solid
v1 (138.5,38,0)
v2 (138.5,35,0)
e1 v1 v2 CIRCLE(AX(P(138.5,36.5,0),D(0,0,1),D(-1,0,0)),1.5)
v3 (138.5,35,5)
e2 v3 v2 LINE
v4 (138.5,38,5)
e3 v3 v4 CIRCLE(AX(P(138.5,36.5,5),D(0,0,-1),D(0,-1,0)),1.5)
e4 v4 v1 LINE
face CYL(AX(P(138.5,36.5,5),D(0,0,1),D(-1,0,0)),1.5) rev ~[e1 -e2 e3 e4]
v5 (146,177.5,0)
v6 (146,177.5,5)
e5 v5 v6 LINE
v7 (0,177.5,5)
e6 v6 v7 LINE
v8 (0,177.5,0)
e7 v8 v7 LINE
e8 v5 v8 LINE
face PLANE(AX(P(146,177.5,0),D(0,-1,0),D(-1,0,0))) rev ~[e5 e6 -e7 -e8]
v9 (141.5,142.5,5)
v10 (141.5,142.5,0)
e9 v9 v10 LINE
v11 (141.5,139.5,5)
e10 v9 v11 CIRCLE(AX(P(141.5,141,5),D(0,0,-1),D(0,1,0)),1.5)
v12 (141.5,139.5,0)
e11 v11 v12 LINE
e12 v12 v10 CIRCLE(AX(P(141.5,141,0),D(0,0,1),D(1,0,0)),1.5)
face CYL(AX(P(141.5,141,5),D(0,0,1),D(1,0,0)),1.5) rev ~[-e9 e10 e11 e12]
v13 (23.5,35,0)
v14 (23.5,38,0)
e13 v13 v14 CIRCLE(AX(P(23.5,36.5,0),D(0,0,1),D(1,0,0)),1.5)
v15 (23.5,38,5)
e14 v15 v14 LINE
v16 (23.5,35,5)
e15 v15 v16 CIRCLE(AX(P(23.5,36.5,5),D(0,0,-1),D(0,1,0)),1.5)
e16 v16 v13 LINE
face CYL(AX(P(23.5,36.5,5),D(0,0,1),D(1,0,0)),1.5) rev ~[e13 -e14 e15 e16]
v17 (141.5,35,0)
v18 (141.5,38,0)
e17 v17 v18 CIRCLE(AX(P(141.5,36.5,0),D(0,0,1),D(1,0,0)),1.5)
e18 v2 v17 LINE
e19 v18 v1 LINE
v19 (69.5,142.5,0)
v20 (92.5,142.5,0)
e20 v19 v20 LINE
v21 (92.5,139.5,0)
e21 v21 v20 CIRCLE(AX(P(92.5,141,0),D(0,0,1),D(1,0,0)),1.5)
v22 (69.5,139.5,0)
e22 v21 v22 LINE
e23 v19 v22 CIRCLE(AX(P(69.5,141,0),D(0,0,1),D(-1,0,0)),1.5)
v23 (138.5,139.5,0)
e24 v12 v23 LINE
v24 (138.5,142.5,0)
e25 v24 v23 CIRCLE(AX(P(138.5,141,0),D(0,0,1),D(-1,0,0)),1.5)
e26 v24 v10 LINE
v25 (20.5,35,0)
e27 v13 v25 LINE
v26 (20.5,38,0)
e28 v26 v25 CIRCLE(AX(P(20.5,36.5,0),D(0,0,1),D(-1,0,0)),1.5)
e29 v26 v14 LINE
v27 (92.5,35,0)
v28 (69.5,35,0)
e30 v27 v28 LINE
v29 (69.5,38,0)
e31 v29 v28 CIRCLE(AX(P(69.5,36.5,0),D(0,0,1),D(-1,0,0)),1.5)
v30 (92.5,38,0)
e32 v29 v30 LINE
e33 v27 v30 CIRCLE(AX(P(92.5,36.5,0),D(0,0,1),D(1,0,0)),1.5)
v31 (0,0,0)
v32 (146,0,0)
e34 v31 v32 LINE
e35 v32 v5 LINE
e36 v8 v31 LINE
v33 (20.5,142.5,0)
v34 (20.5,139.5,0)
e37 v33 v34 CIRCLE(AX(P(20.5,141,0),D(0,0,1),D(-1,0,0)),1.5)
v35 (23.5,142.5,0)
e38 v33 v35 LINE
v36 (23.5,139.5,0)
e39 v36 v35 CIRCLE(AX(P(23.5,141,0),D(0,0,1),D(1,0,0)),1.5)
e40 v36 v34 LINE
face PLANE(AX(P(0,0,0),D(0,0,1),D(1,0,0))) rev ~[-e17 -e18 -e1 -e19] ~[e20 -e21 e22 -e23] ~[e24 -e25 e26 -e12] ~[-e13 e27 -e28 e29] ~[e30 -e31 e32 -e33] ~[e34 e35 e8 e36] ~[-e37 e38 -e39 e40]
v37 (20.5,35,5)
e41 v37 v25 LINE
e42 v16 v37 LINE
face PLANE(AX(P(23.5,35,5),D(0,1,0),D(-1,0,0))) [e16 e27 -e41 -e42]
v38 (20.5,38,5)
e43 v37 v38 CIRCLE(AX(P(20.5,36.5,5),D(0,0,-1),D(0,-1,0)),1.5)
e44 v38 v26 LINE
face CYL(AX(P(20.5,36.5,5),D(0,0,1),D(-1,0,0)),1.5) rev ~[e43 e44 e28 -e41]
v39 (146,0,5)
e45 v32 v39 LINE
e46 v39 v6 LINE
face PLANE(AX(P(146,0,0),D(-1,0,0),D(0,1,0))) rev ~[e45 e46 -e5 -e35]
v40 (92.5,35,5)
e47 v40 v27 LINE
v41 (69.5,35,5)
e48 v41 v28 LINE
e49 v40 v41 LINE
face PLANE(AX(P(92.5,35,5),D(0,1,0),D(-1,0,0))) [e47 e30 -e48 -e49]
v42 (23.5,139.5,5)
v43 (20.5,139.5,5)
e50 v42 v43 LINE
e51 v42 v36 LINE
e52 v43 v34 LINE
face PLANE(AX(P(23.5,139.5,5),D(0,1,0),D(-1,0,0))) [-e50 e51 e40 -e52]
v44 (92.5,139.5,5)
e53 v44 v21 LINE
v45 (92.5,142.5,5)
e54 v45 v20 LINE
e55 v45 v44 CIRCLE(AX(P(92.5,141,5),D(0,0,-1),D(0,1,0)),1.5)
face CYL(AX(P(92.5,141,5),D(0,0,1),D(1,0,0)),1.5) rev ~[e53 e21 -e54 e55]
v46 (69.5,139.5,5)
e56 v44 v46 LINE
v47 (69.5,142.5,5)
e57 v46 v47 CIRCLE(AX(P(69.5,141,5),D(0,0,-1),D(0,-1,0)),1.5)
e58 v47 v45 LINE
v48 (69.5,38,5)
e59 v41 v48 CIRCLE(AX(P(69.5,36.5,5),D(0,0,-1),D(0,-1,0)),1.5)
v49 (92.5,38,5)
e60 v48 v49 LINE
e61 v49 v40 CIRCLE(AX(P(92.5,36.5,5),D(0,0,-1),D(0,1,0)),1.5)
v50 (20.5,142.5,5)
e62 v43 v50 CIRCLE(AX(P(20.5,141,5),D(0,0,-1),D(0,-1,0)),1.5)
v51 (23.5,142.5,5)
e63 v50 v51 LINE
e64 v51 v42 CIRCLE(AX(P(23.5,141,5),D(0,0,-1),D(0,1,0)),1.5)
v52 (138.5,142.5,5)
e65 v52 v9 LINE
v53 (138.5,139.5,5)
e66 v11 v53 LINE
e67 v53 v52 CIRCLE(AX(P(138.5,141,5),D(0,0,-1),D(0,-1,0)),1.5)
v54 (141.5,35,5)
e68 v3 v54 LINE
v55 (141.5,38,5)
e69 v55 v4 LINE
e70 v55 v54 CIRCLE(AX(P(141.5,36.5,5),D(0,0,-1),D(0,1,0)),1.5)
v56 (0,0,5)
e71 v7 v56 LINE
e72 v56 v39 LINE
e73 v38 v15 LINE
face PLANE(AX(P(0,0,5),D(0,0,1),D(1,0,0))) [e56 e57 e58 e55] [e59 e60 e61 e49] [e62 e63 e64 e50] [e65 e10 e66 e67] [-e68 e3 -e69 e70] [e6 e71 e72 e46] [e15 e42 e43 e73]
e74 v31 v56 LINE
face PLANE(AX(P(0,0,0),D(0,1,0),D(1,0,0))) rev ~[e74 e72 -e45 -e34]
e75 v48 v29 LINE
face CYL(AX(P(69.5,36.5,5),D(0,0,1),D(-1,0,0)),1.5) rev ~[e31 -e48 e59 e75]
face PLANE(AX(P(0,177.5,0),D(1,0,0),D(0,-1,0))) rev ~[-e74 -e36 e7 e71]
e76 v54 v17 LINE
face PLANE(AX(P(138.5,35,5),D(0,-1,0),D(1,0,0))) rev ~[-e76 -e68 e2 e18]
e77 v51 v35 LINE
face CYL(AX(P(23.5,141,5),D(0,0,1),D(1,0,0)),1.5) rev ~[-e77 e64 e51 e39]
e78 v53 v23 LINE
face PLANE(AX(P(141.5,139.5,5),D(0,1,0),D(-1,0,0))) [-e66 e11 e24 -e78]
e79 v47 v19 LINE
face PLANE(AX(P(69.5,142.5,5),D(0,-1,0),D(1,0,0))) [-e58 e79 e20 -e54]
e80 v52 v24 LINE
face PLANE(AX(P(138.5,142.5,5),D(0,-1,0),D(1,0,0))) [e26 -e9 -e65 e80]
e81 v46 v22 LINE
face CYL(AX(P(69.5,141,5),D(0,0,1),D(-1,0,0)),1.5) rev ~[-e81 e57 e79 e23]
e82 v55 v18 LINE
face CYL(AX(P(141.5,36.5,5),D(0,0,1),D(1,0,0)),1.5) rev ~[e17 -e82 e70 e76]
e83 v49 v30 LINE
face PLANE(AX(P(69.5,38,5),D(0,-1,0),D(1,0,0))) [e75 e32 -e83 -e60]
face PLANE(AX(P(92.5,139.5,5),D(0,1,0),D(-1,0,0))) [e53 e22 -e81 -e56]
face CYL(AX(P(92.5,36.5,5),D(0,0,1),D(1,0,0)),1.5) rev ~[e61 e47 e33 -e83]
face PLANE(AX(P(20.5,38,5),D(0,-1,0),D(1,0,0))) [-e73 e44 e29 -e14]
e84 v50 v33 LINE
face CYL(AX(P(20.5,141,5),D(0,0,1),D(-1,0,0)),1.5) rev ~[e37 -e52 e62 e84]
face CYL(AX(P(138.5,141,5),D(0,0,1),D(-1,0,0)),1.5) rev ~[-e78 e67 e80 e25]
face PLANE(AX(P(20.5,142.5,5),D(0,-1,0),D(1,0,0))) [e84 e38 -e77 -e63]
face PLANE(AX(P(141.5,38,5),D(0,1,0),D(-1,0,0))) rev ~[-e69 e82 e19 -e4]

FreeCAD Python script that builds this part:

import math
import FreeCAD as App
import Part
import Sketcher
Q = App.Units.Quantity

doc = App.newDocument("Part")
body = doc.addObject("PartDesign::Body", "Body")

# Sketch on XY plane
sketch1 = body.newObject("Sketcher::SketchObject", "Sketch")
sketch1.AttachmentSupport = (doc.getObject("XY_Plane"), [""])
sketch1.MapMode = "FlatFace"
sketch1.addGeometry([
    Part.LineSegment(App.Vector(0, 178, 0), App.Vector(0, 0, 0)),
    Part.LineSegment(App.Vector(0, 0, 0), App.Vector(146, 0, 0)),
    Part.LineSegment(App.Vector(146, 0, 0), App.Vector(146, 178, 0)),
    Part.LineSegment(App.Vector(146, 178, 0), App.Vector(0, 178, 0)),
], False)
sketch1.addConstraint([
    Sketcher.Constraint("Coincident", 0, 2, 1, 1),
    Sketcher.Constraint("Coincident", 1, 2, 2, 1),
    Sketcher.Constraint("Coincident", 2, 2, 3, 1),
    Sketcher.Constraint("Coincident", 3, 2, 0, 1),
    Sketcher.Constraint("Vertical", 0),
    Sketcher.Constraint("Horizontal", 1),
    Sketcher.Constraint("Vertical", 2),
    Sketcher.Constraint("Horizontal", 3),
    Sketcher.Constraint("Coincident", 0, 2, -1, 1),
    Sketcher.Constraint("DistanceX", 1, 1, 1, 2, Q("146 mm")),
    Sketcher.Constraint("DistanceY", 0, 2, 0, 1, Q("177.5 mm")),
])
pad1 = body.newObject("PartDesign::Pad", "Pad")
pad1.Profile = sketch1
pad1.Length = 5

# Sketch on XY plane
sketch2 = body.newObject("Sketcher::SketchObject", "Sketch001")
sketch2.AttachmentSupport = (doc.getObject("XY_Plane"), [""])
sketch2.MapMode = "FlatFace"
sketch2.AttachmentOffset = App.Placement(App.Vector(0, 0, 5), App.Rotation())
sketch2.addGeometry([
    Part.LineSegment(App.Vector(23.5, 142.5, 0), App.Vector(20.5, 142.5, 0)),  # 0
    Part.ArcOfCircle(Part.Circle(App.Vector(20.5, 141, 0), App.Vector(0, 0, 1), 1.5), math.radians(90), math.radians(270)),  # 1
    Part.LineSegment(App.Vector(20.5, 139.5, 0), App.Vector(23.5, 139.5, 0)),  # 2
    Part.ArcOfCircle(Part.Circle(App.Vector(23.5, 141, 0), App.Vector(0, 0, 1), 1.5), math.radians(-90), math.radians(90)),  # 3
    Part.LineSegment(App.Vector(23.5, 38, 0), App.Vector(20.5, 38, 0)),  # 4
    Part.ArcOfCircle(Part.Circle(App.Vector(20.5, 36.5, 0), App.Vector(0, 0, 1), 1.5), math.radians(90), math.radians(270)),  # 5
    Part.LineSegment(App.Vector(20.5, 35, 0), App.Vector(23.5, 35, 0)),  # 6
    Part.ArcOfCircle(Part.Circle(App.Vector(23.5, 36.5, 0), App.Vector(0, 0, 1), 1.5), math.radians(-90), math.radians(90)),  # 7
    Part.LineSegment(App.Vector(141.5, 142.5, 0), App.Vector(138.5, 142.5, 0)),  # 8
    Part.ArcOfCircle(Part.Circle(App.Vector(138.5, 141, 0), App.Vector(0, 0, 1), 1.5), math.radians(90), math.radians(270)),  # 9
    Part.LineSegment(App.Vector(138.5, 139.5, 0), App.Vector(141.5, 139.5, 0)),  # 10
    Part.ArcOfCircle(Part.Circle(App.Vector(141.5, 141, 0), App.Vector(0, 0, 1), 1.5), math.radians(-90), math.radians(90)),  # 11
    Part.ArcOfCircle(Part.Circle(App.Vector(141.5, 36.5, 0), App.Vector(0, 0, 1), 1.5), math.radians(-90), math.radians(90)),  # 12
    Part.LineSegment(App.Vector(141.5, 38, 0), App.Vector(138.5, 38, 0)),  # 13
    Part.ArcOfCircle(Part.Circle(App.Vector(138.5, 36.5, 0), App.Vector(0, 0, 1), 1.5), math.radians(90), math.radians(270)),  # 14
    Part.LineSegment(App.Vector(138.5, 35, 0), App.Vector(141.5, 35, 0)),  # 15
    Part.LineSegment(App.Vector(92.5, 142.5, 0), App.Vector(69.5, 142.5, 0)),  # 16
    Part.ArcOfCircle(Part.Circle(App.Vector(69.5, 141, 0), App.Vector(0, 0, 1), 1.5), math.radians(90), math.radians(270)),  # 17
    Part.LineSegment(App.Vector(69.5, 139.5, 0), App.Vector(92.5, 139.5, 0)),  # 18
    Part.ArcOfCircle(Part.Circle(App.Vector(92.5, 141, 0), App.Vector(0, 0, 1), 1.5), math.radians(-90), math.radians(90)),  # 19
    Part.LineSegment(App.Vector(92.5, 38, 0), App.Vector(69.5, 38, 0)),  # 20
    Part.ArcOfCircle(Part.Circle(App.Vector(69.5, 36.5, 0), App.Vector(0, 0, 1), 1.5), math.radians(90), math.radians(270)),  # 21
    Part.LineSegment(App.Vector(69.5, 35, 0), App.Vector(92.5, 35, 0)),  # 22
    Part.ArcOfCircle(Part.Circle(App.Vector(92.5, 36.5, 0), App.Vector(0, 0, 1), 1.5), math.radians(-90), math.radians(90)),  # 23
], False)
sketch2.addConstraint([
    Sketcher.Constraint("Tangent", 0, 2, 1, 1),
    Sketcher.Constraint("Tangent", 1, 2, 2, 1),
    Sketcher.Constraint("Tangent", 2, 2, 3, 1),
    Sketcher.Constraint("Tangent", 3, 2, 0, 1),
    Sketcher.Constraint("Tangent", 4, 2, 5, 1),
    Sketcher.Constraint("Tangent", 5, 2, 6, 1),
    Sketcher.Constraint("Tangent", 6, 2, 7, 1),
    Sketcher.Constraint("Tangent", 7, 2, 4, 1),
    Sketcher.Constraint("Tangent", 8, 2, 9, 1),
    Sketcher.Constraint("Tangent", 9, 2, 10, 1),
    Sketcher.Constraint("Tangent", 10, 2, 11, 1),
    Sketcher.Constraint("Tangent", 11, 2, 8, 1),
    Sketcher.Constraint("Tangent", 12, 2, 13, 1),
    Sketcher.Constraint("Tangent", 13, 2, 14, 1),
    Sketcher.Constraint("Tangent", 14, 2, 15, 1),
    Sketcher.Constraint("Tangent", 15, 2, 12, 1),
    Sketcher.Constraint("Tangent", 16, 2, 17, 1),
    Sketcher.Constraint("Tangent", 17, 2, 18, 1),
    Sketcher.Constraint("Tangent", 18, 2, 19, 1),
    Sketcher.Constraint("Tangent", 19, 2, 16, 1),
    Sketcher.Constraint("Tangent", 20, 2, 21, 1),
    Sketcher.Constraint("Tangent", 21, 2, 22, 1),
    Sketcher.Constraint("Tangent", 22, 2, 23, 1),
    Sketcher.Constraint("Tangent", 23, 2, 20, 1),
    Sketcher.Constraint("Horizontal", 0),
    Sketcher.Constraint("Horizontal", 2),
    Sketcher.Constraint("Horizontal", 4),
    Sketcher.Constraint("Horizontal", 6),
    Sketcher.Constraint("Horizontal", 8),
    Sketcher.Constraint("Horizontal", 10),
    Sketcher.Constraint("Horizontal", 13),
    Sketcher.Constraint("Horizontal", 15),
    Sketcher.Constraint("Horizontal", 16),
    Sketcher.Constraint("Horizontal", 18),
    Sketcher.Constraint("Horizontal", 20),
    Sketcher.Constraint("Horizontal", 22),
    Sketcher.Constraint("Equal", 3, 5),
    Sketcher.Constraint("Equal", 7, 9),
    Sketcher.Constraint("Equal", 11, 12),
    Sketcher.Constraint("Equal", 14, 17),
    Sketcher.Constraint("Equal", 19, 21),
    Sketcher.Constraint("Horizontal", 3, 3, 9, 3),
    Sketcher.Constraint("Horizontal", 7, 3, 12, 3),
    Sketcher.Constraint("Horizontal", 11, 3, 17, 3),
    Sketcher.Constraint("Horizontal", 14, 3, 21, 3),
    Sketcher.Constraint("Vertical", 1, 3, 5, 3),
    Sketcher.Constraint("Vertical", 3, 3, 7, 3),
    Sketcher.Constraint("Vertical", 11, 3, 12, 3),
    Sketcher.Constraint("Vertical", 9, 3, 14, 3),
    Sketcher.Constraint("Vertical", 17, 3, 21, 3),
    Sketcher.Constraint("Vertical", 19, 3, 23, 3),
    Sketcher.Constraint("Equal", 6, 8),
    Sketcher.Constraint("Radius", 1, Q("1.5 mm")),
    Sketcher.Constraint("DistanceX", 0, 2, 0, 1, Q("3 mm")),
    Sketcher.Constraint("DistanceY", -1, 1, 5, 3, Q("36.5 mm")),
    Sketcher.Constraint("DistanceY", 5, 3, 1, 3, Q("104.5 mm")),
    Sketcher.Constraint("DistanceX", 16, 2, 16, 1, Q("23 mm")),
    Sketcher.Constraint("DistanceX", 3, 3, 9, 3, Q("115 mm")),
    Sketcher.Constraint("DistanceX", 3, 3, 17, 3, Q("46 mm")),
    Sketcher.Constraint("DistanceX", -1, 1, 1, 3, Q("20.5 mm")),
])
pocket1 = body.newObject("PartDesign::Pocket", "Pocket")
pocket1.Profile = sketch2
pocket1.Length = 10

doc.recompute()
